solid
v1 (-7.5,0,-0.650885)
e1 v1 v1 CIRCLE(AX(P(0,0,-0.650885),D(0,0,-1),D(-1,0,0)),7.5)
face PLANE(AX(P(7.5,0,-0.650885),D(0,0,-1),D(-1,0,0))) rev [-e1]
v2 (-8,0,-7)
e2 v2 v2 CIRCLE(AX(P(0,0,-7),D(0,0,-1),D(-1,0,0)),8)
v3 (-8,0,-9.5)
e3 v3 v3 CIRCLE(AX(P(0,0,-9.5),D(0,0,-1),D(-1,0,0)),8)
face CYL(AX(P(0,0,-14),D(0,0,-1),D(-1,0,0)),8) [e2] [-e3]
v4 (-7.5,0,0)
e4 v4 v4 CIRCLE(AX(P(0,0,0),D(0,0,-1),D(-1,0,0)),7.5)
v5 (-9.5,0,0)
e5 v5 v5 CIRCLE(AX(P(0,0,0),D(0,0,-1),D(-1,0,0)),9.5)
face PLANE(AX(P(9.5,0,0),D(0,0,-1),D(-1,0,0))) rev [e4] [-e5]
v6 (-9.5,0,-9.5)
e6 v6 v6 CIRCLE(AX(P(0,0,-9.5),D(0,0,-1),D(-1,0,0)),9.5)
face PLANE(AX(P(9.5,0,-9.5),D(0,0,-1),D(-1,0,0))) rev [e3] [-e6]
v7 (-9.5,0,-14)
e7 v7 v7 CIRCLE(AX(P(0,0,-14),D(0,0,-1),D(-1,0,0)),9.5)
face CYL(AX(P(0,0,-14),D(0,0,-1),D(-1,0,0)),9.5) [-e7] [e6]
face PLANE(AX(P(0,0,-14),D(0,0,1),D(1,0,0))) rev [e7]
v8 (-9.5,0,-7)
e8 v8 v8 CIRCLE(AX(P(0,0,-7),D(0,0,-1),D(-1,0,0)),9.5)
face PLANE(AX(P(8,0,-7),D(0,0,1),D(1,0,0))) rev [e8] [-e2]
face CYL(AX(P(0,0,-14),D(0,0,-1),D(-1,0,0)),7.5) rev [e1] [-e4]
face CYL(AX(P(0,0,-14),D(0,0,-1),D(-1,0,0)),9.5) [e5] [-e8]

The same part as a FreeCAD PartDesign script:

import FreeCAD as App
import Part
import Sketcher

V = App.Vector
Q = App.Units.Quantity


def add_polygon(sketch, points):
    """Adds a closed chain of lines whose ends are joined by coincident constraints."""
    first, n = sketch.GeometryCount, len(points)
    for a, b in zip(points, points[1:] + points[:1]):
        sketch.addGeometry(Part.LineSegment(App.Vector(*a, 0), App.Vector(*b, 0)), False)
    for i in range(n):
        sketch.addConstraint(Sketcher.Constraint("Coincident", first + i, 2, first + (i + 1) % n, 1))

doc = App.newDocument("Part")
params = doc.addObject("Spreadsheet::Sheet", "Params")
for row, (alias, value) in enumerate([
    ("sketch1_width", "2 mm"),
    ("sketch1_height", "7 mm"),
    ("sketch1_width2", "7.5 mm"),
    ("sketch1_width3", "1.5 mm"),
    ("sketch1_height2", "2.5 mm"),
    ("revolution_angle", "360 deg"),
], start=1):
    params.set(f"A{row}", alias)
    params.set(f"B{row}", "=" + value)
    params.setAlias(f"B{row}", alias)

body = doc.addObject("PartDesign::Body", "Body")

sketch1 = body.newObject("Sketcher::SketchObject", "Sketch")
sketch1.AttachmentSupport = (doc.getObject("XZ_Plane"), [""])
sketch1.MapMode = "FlatFace"
add_polygon(sketch1, [(0, -14), (0, -0.7), (7.5, -0.7), (7.5, 0), (9.5, 0), (9.5, -7), (8, -7), (8, -9.5), (9.5, -9.5), (9.5, -14)])
sketch1.addConstraint(Sketcher.Constraint("Vertical", 0))
sketch1.addConstraint(Sketcher.Constraint("Horizontal", 1))
sketch1.addConstraint(Sketcher.Constraint("Vertical", 2))
sketch1.addConstraint(Sketcher.Constraint("Horizontal", 3))
sketch1.addConstraint(Sketcher.Constraint("Vertical", 4))
sketch1.addConstraint(Sketcher.Constraint("Horizontal", 5))
sketch1.addConstraint(Sketcher.Constraint("Vertical", 6))
sketch1.addConstraint(Sketcher.Constraint("Horizontal", 7))
sketch1.addConstraint(Sketcher.Constraint("Vertical", 8))
sketch1.addConstraint(Sketcher.Constraint("Horizontal", 9))
sketch1.addConstraint(Sketcher.Constraint("PointOnObject", 0, 2, -2))
sketch1.addConstraint(Sketcher.Constraint("PointOnObject", 2, 2, -1))
sketch1.addConstraint(Sketcher.Constraint("Vertical", 4, 2, 7, 2))
sketch1.addConstraint(Sketcher.Constraint("DistanceX", 3, 1, 3, 2, Q("2 mm")))
sketch1.addConstraint(Sketcher.Constraint("DistanceY", 4, 2, 4, 1, Q("7 mm")))
sketch1.addConstraint(Sketcher.Constraint("DistanceX", 1, 1, 1, 2, Q("7.5 mm")))
sketch1.addConstraint(Sketcher.Constraint("DistanceX", 5, 2, 5, 1, Q("1.5 mm")))
sketch1.addConstraint(Sketcher.Constraint("DistanceY", 6, 2, 6, 1, Q("2.5 mm")))
sketch1.addConstraint(Sketcher.Constraint("DistanceY", 8, 2, 8, 1, Q("4.5 mm")))
sketch1.addConstraint(Sketcher.Constraint("DistanceY", 0, 1, 0, 2, Q("13.349115 mm")))
sketch1.setExpression("Constraints[23]", "Params.sketch1_width")
sketch1.setExpression("Constraints[24]", "Params.sketch1_height")
sketch1.setExpression("Constraints[25]", "Params.sketch1_width2")
sketch1.setExpression("Constraints[26]", "Params.sketch1_width3")
sketch1.setExpression("Constraints[27]", "Params.sketch1_height2")
revolution = body.newObject("PartDesign::Revolution", "Revolution")
revolution.Profile = sketch1
revolution.ReferenceAxis = (sketch1, ["V_Axis"])
revolution.setExpression("Angle", "Params.revolution_angle")

doc.recompute()
